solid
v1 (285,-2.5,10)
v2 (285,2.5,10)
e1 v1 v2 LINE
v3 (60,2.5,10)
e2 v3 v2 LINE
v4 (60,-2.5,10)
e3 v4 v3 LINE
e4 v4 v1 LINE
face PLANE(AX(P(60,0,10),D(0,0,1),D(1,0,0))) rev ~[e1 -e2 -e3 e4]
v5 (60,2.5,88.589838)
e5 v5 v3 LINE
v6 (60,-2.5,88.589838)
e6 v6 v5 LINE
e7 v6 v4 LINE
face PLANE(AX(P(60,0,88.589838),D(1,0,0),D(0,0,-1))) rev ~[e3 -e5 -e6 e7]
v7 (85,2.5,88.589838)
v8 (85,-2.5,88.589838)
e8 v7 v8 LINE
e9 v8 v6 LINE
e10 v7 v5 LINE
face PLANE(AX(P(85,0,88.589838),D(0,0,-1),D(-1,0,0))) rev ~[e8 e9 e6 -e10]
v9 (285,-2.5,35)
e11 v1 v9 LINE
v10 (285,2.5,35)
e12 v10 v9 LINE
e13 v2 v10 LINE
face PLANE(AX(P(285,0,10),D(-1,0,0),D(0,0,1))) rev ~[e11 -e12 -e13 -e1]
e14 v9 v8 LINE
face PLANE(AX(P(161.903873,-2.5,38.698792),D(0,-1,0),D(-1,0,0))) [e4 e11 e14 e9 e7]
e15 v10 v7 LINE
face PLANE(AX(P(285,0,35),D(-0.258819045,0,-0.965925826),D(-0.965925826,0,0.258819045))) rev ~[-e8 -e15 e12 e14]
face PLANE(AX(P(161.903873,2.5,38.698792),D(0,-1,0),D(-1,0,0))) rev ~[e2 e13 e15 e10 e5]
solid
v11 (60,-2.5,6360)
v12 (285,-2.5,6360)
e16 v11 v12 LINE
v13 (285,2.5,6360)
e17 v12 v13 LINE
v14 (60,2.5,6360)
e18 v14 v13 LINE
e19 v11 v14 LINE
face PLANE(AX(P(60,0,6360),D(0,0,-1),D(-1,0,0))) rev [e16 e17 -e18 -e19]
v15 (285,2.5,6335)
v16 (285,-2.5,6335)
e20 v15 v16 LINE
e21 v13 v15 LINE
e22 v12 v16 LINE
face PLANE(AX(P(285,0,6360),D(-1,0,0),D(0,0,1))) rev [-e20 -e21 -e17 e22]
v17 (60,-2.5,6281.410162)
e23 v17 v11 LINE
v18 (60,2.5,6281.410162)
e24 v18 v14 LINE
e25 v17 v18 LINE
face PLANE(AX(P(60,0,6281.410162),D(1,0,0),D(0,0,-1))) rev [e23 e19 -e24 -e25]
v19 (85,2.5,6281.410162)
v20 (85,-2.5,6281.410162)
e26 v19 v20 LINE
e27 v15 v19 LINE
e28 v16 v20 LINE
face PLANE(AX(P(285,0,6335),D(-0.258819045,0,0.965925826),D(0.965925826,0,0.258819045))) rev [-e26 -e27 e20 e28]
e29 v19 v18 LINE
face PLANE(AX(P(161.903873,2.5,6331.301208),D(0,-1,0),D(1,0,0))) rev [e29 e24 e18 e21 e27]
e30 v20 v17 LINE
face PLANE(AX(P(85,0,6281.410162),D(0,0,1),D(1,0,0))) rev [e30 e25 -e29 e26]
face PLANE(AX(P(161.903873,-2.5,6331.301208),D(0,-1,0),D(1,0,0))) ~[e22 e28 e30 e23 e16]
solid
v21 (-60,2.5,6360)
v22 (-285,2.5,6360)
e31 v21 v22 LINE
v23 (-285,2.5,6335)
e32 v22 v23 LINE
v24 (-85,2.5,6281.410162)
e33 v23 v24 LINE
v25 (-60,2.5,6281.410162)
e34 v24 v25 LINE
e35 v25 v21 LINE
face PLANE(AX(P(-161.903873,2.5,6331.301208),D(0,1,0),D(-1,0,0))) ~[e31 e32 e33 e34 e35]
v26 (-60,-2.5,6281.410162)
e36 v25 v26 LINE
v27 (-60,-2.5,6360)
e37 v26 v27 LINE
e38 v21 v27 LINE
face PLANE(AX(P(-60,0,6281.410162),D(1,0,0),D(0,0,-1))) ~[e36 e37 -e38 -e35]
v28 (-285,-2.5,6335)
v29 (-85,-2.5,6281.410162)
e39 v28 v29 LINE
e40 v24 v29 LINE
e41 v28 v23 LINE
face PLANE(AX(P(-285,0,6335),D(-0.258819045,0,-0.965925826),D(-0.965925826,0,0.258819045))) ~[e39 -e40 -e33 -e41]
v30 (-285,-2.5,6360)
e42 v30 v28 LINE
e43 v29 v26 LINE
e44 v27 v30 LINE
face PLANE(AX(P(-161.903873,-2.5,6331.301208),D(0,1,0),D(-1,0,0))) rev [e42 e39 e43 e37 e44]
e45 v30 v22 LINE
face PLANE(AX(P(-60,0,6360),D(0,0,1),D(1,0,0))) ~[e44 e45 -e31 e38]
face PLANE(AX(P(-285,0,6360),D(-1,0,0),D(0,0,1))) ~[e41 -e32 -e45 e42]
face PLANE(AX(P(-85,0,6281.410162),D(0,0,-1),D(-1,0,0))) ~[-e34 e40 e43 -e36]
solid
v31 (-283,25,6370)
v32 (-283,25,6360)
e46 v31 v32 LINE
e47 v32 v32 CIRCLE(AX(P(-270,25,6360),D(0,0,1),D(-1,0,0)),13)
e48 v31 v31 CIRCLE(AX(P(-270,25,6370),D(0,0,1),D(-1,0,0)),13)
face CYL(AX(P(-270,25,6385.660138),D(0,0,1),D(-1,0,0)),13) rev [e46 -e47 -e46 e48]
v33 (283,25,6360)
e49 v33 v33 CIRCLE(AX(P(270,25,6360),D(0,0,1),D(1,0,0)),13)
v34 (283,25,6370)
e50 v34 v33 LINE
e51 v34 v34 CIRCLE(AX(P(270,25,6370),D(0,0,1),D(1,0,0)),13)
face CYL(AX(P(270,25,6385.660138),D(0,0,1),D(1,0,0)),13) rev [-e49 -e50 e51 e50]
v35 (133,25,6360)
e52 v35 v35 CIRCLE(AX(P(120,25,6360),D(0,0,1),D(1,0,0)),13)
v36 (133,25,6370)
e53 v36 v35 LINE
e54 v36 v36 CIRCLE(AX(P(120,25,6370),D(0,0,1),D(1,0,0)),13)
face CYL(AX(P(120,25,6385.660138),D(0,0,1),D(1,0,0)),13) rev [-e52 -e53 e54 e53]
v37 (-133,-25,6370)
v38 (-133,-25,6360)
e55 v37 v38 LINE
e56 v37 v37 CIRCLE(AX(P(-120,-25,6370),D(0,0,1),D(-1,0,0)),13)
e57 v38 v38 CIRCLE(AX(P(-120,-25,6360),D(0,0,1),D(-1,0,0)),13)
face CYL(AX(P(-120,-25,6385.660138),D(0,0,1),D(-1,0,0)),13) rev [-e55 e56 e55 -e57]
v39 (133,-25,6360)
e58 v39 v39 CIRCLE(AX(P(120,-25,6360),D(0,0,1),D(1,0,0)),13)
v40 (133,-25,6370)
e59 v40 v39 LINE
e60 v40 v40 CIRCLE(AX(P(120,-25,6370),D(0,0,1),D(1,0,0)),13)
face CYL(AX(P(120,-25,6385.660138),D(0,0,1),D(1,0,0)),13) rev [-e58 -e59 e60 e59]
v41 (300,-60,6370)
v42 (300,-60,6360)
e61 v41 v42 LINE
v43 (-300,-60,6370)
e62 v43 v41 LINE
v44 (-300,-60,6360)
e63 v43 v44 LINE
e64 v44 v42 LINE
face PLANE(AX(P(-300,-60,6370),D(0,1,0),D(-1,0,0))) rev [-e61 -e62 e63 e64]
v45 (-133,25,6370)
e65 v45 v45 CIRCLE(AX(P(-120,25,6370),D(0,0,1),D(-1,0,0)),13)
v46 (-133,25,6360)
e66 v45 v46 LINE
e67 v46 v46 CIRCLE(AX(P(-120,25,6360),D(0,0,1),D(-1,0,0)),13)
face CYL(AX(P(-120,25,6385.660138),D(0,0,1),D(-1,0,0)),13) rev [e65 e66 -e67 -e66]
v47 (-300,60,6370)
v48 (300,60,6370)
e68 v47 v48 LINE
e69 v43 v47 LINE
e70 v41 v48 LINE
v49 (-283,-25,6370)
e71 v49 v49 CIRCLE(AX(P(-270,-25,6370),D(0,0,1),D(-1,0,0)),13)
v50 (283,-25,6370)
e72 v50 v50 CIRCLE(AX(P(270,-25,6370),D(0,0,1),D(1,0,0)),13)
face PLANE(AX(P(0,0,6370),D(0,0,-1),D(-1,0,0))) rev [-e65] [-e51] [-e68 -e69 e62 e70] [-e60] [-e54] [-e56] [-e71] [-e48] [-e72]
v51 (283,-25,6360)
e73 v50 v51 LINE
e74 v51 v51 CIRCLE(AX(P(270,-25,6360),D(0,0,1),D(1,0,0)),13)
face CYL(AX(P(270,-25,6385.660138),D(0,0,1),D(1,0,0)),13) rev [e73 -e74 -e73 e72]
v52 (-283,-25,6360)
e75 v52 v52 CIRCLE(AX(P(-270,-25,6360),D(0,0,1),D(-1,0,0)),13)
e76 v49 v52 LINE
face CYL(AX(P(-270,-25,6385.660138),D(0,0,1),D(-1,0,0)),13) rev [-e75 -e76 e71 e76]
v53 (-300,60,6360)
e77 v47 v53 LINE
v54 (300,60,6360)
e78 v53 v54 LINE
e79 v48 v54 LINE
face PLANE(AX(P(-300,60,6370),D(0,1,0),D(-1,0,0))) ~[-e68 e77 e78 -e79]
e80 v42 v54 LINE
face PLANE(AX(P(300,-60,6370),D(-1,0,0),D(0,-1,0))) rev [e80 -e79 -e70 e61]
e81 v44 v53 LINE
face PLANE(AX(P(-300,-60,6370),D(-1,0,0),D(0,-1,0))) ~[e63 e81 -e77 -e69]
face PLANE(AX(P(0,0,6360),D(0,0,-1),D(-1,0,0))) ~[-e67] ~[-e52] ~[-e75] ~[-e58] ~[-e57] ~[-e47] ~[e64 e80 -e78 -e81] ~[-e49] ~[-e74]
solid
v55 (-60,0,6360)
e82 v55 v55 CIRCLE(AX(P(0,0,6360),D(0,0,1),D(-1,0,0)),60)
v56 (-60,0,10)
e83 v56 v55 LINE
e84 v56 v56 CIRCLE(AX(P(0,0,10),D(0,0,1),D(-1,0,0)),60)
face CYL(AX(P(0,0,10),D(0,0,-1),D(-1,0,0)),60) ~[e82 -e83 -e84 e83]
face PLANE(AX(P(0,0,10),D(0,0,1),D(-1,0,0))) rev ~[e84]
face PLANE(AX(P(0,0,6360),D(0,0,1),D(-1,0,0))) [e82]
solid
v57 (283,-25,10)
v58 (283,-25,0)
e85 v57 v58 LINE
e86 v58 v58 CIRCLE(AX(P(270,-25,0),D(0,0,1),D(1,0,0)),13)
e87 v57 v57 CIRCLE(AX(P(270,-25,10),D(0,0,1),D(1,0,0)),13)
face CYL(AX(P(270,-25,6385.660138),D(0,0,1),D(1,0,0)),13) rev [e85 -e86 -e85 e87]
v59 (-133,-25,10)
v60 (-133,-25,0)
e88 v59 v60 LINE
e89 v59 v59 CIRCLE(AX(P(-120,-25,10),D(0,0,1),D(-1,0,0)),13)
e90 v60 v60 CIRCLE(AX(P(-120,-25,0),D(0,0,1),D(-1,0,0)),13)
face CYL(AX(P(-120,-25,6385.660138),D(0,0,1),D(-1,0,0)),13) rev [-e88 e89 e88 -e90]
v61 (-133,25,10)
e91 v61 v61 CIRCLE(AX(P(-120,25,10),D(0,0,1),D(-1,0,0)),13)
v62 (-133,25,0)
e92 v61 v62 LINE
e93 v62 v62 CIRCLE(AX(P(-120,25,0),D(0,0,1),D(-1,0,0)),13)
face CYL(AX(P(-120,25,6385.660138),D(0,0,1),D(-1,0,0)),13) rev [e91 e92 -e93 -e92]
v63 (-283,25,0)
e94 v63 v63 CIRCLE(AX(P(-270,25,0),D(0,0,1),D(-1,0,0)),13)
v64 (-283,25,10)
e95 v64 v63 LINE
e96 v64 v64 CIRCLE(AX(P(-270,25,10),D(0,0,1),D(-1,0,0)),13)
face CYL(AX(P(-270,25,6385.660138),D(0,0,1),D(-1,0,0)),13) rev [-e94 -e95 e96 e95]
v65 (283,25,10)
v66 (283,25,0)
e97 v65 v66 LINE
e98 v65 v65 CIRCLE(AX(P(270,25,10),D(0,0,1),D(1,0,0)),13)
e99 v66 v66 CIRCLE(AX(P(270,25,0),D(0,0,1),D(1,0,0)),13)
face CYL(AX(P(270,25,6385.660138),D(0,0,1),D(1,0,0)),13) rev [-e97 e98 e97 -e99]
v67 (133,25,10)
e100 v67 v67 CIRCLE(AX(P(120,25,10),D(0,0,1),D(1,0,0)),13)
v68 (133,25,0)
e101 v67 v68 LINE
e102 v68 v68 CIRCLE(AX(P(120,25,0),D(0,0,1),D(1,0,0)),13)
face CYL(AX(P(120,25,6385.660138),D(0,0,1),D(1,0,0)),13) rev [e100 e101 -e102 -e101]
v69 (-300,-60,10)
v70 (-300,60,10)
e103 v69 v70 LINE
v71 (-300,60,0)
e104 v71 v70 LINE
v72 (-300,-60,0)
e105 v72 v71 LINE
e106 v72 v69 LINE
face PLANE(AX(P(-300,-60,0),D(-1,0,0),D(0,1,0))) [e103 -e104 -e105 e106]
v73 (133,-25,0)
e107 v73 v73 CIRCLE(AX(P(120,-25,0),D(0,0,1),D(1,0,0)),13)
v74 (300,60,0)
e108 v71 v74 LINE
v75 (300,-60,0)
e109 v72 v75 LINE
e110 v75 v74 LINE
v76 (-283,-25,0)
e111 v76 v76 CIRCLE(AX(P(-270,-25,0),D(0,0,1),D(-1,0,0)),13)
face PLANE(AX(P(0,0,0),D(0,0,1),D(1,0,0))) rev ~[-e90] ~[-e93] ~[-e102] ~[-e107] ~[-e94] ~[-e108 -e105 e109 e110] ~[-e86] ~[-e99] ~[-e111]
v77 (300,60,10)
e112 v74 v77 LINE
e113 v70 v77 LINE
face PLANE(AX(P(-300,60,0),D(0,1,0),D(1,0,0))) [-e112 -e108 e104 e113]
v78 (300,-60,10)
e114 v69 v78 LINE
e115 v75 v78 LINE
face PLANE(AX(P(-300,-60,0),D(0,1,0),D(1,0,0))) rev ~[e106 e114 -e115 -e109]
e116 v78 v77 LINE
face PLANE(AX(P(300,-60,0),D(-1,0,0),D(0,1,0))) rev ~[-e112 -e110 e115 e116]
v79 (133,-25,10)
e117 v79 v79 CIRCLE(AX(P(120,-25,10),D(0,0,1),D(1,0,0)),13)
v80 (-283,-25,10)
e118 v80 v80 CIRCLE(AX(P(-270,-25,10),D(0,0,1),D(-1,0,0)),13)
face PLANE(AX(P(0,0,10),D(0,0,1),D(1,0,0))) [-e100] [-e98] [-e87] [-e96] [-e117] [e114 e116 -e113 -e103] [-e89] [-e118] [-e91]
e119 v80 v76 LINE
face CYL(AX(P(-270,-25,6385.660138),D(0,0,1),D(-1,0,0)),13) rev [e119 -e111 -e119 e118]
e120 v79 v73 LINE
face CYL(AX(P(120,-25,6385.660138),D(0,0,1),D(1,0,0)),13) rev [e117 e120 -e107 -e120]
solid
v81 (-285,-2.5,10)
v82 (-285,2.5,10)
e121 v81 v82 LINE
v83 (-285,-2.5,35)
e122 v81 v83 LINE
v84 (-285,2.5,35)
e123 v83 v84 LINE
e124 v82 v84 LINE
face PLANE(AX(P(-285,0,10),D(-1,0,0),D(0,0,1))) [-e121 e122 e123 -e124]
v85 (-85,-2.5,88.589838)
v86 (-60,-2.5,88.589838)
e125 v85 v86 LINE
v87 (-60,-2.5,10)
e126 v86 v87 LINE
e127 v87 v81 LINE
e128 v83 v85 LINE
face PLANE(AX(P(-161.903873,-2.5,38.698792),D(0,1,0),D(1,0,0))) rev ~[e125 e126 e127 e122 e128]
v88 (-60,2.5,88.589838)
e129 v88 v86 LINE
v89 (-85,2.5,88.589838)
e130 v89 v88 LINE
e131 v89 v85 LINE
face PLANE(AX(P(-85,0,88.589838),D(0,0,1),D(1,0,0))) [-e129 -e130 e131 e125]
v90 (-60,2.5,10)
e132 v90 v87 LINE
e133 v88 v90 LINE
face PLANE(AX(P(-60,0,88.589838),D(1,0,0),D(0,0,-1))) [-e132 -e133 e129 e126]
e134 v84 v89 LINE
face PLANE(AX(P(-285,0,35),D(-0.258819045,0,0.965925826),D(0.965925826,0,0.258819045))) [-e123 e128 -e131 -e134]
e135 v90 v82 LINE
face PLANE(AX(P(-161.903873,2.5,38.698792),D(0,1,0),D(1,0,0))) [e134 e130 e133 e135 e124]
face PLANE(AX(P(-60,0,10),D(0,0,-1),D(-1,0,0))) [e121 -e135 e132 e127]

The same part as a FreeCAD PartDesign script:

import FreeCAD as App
import Part
import Sketcher
from FreeCAD import Vector
Q = App.Units.Quantity

doc = App.newDocument("Part")
body = doc.addObject("PartDesign::Body", "Body")

# Sketch on XY plane
sketch1 = body.newObject("Sketcher::SketchObject", "Sketch")
sketch1.AttachmentSupport = (doc.getObject("XY_Plane"), [""])
sketch1.MapMode = "FlatFace"
sketch1.addGeometry([
    Part.LineSegment(Vector(-300, 60, 0), Vector(-300, -60, 0)),
    Part.LineSegment(Vector(-300, -60, 0), Vector(300, -60, 0)),
    Part.LineSegment(Vector(300, -60, 0), Vector(300, 60, 0)),
    Part.LineSegment(Vector(300, 60, 0), Vector(-300, 60, 0)),
], False)
sketch1.addConstraint([
    Sketcher.Constraint("Coincident", 0, 2, 1, 1),
    Sketcher.Constraint("Coincident", 1, 2, 2, 1),
    Sketcher.Constraint("Coincident", 2, 2, 3, 1),
    Sketcher.Constraint("Coincident", 3, 2, 0, 1),
    Sketcher.Constraint("Vertical", 0),
    Sketcher.Constraint("Horizontal", 1),
    Sketcher.Constraint("Vertical", 2),
    Sketcher.Constraint("Horizontal", 3),
    Sketcher.Constraint("Symmetric", 0, 2, 2, 2, -1, 1),
    Sketcher.Constraint("DistanceX", 1, 1, 1, 2, Q("600 mm")),
    Sketcher.Constraint("DistanceY", 0, 2, 0, 1, Q("120 mm")),
])
pad1 = body.newObject("PartDesign::Pad", "Pad")
pad1.Profile = sketch1
pad1.Length = 10
body2 = doc.addObject("PartDesign::Body", "Body001")

# Sketch on XY plane
sketch2 = body2.newObject("Sketcher::SketchObject", "Sketch001")
sketch2.AttachmentSupport = (doc.getObject("XY_Plane001"), [""])
sketch2.MapMode = "FlatFace"
sketch2.AttachmentOffset = App.Placement(Vector(0, 0, 10), App.Rotation())
sketch2.addGeometry(Part.Circle(Vector(0, 0, 0), Vector(0, 0, 1), 60), False)
sketch2.addConstraint([
    Sketcher.Constraint("Coincident", 0, 3, -1, 1),
    Sketcher.Constraint("Diameter", 0, Q("120 mm")),
])
pad2 = body2.newObject("PartDesign::Pad", "Pad001")
pad2.Profile = sketch2
pad2.Length = 6350
body3 = doc.addObject("PartDesign::Body", "Body002")

# Sketch on XZ plane
sketch3 = body3.newObject("Sketcher::SketchObject", "Sketch002")
sketch3.AttachmentSupport = (doc.getObject("XZ_Plane002"), [""])
sketch3.MapMode = "FlatFace"
sketch3.addGeometry([
    Part.LineSegment(Vector(285, 35, 0), Vector(285, 10, 0)),  # 0
    Part.LineSegment(Vector(285, 10, 0), Vector(60, 10, 0)),  # 1
    Part.LineSegment(Vector(60, 10, 0), Vector(60, 89, 0)),  # 2
    Part.LineSegment(Vector(60, 89, 0), Vector(85, 89, 0)),  # 3
    Part.LineSegment(Vector(85, 89, 0), Vector(285, 35, 0)),  # 4
], False)
sketch3.addConstraint([
    Sketcher.Constraint("Coincident", 0, 2, 1, 1),
    Sketcher.Constraint("Coincident", 1, 2, 2, 1),
    Sketcher.Constraint("Coincident", 2, 2, 3, 1),
    Sketcher.Constraint("Coincident", 3, 2, 4, 1),
    Sketcher.Constraint("Coincident", 4, 2, 0, 1),
    Sketcher.Constraint("Vertical", 0),
    Sketcher.Constraint("Horizontal", 1),
    Sketcher.Constraint("Vertical", 2),
    Sketcher.Constraint("Horizontal", 3),
    Sketcher.Constraint("Equal", 3, 0),
    Sketcher.Constraint("DistanceX", 1, 2, 1, 1, Q("225 mm")),
    Sketcher.Constraint("DistanceX", 3, 1, 3, 2, Q("25 mm")),
    Sketcher.Constraint("Angle", 4, Q("-15 deg")),
    Sketcher.Constraint("DistanceX", -1, 1, 0, 2, Q("285 mm")),
    Sketcher.Constraint("DistanceY", -1, 1, 0, 2, Q("10 mm")),
])
pad3 = body3.newObject("PartDesign::Pad", "Pad002")
pad3.Profile = sketch3
pad3.Length = 5
pad3.Midplane = True
body4 = doc.addObject("PartDesign::Body", "Body003")

# Sketch on XZ plane
sketch4 = body4.newObject("Sketcher::SketchObject", "Sketch003")
sketch4.AttachmentSupport = (doc.getObject("XZ_Plane003"), [""])
sketch4.MapMode = "FlatFace"
sketch4.addGeometry([
    Part.LineSegment(Vector(-60, 10, 0), Vector(-285, 10, 0)),  # 0
    Part.LineSegment(Vector(-285, 10, 0), Vector(-285, 35, 0)),  # 1
    Part.LineSegment(Vector(-285, 35, 0), Vector(-85, 89, 0)),  # 2
    Part.LineSegment(Vector(-85, 89, 0), Vector(-60, 89, 0)),  # 3
    Part.LineSegment(Vector(-60, 89, 0), Vector(-60, 10, 0)),  # 4
], False)
sketch4.addConstraint([
    Sketcher.Constraint("Coincident", 0, 2, 1, 1),
    Sketcher.Constraint("Coincident", 1, 2, 2, 1),
    Sketcher.Constraint("Coincident", 2, 2, 3, 1),
    Sketcher.Constraint("Coincident", 3, 2, 4, 1),
    Sketcher.Constraint("Coincident", 4, 2, 0, 1),
    Sketcher.Constraint("Horizontal", 0),
    Sketcher.Constraint("Vertical", 1),
    Sketcher.Constraint("Horizontal", 3),
    Sketcher.Constraint("Vertical", 4),
    Sketcher.Constraint("Equal", 3, 1),
    Sketcher.Constraint("DistanceX", 0, 2, 0, 1, Q("225 mm")),
    Sketcher.Constraint("DistanceX", 3, 1, 3, 2, Q("25 mm")),
    Sketcher.Constraint("Angle", 2, Q("15 deg")),
    Sketcher.Constraint("DistanceX", 0, 2, -1, 1, Q("285 mm")),
    Sketcher.Constraint("DistanceY", -1, 1, 0, 2, Q("10 mm")),
])
pad4 = body4.newObject("PartDesign::Pad", "Pad003")
pad4.Profile = sketch4
pad4.Length = 5
pad4.Midplane = True
body5 = doc.addObject("PartDesign::Body", "Body004")
doc.recompute()

mirroring = doc.addObject("Part::Mirroring", "Mirroring")
mirroring.Source = body
mirroring.Base = Vector(0, 0, 3185)
mirroring.Normal = Vector(0, 0, -1)
body5.BaseFeature = mirroring
doc.recompute()
body6 = doc.addObject("PartDesign::Body", "Body005")
doc.recompute()

mirroring2 = doc.addObject("Part::Mirroring", "Mirroring001")
mirroring2.Source = body4
mirroring2.Base = Vector(0, 0, 3185)
mirroring2.Normal = Vector(0, 0, -1)
body6.BaseFeature = mirroring2
doc.recompute()
body7 = doc.addObject("PartDesign::Body", "Body006")
doc.recompute()

mirroring3 = doc.addObject("Part::Mirroring", "Mirroring002")
mirroring3.Source = body3
mirroring3.Base = Vector(0, 0, 3185)
mirroring3.Normal = Vector(0, 0, -1)
body7.BaseFeature = mirroring3
doc.recompute()
body8 = doc.addObject("PartDesign::Body", "Body007")
body8.AllowCompound = True

# Sketch on XY plane
sketch5 = body8.newObject("Sketcher::SketchObject", "Sketch004")
sketch5.AttachmentSupport = (doc.getObject("XY_Plane007"), [""])
sketch5.MapMode = "FlatFace"
sketch5.AttachmentOffset = App.Placement(Vector(0, 0, 3185), App.Rotation())
sketch5.addGeometry([
    Part.Circle(Vector(-270, 25, 0), Vector(0, 0, 1), 13),  # 0
    Part.Circle(Vector(-270, -25, 0), Vector(0, 0, 1), 13),  # 1
    Part.Circle(Vector(-120, 25, 0), Vector(0, 0, 1), 13),  # 2
    Part.Circle(Vector(-120, -25, 0), Vector(0, 0, 1), 13),  # 3
    Part.Circle(Vector(120, -25, 0), Vector(0, 0, 1), 13),  # 4
    Part.Circle(Vector(120, 25, 0), Vector(0, 0, 1), 13),  # 5
    Part.Circle(Vector(270, -25, 0), Vector(0, 0, 1), 13),  # 6
    Part.Circle(Vector(270, 25, 0), Vector(0, 0, 1), 13),  # 7
], False)
sketch5.addConstraint([
    Sketcher.Constraint("Equal", 0, 1),
    Sketcher.Constraint("Equal", 1, 2),
    Sketcher.Constraint("Equal", 2, 3),
    Sketcher.Constraint("Equal", 3, 4),
    Sketcher.Constraint("Equal", 4, 5),
    Sketcher.Constraint("Equal", 5, 6),
    Sketcher.Constraint("Equal", 6, 7),
    Sketcher.Constraint("Symmetric", 2, 3, 4, 3, -1, 1),
    Sketcher.Constraint("Symmetric", 3, 3, 5, 3, -1, 1),
    Sketcher.Constraint("Symmetric", 0, 3, 6, 3, -1, 1),
    Sketcher.Constraint("Symmetric", 1, 3, 7, 3, -1, 1),
    Sketcher.Constraint("Symmetric", 3, 3, 4, 3, -2),
    Sketcher.Constraint("Symmetric", 1, 3, 6, 3, -2),
    Sketcher.Constraint("Horizontal", 0, 3, 2, 3),
    Sketcher.Constraint("Diameter", 0, Q("26 mm")),
    Sketcher.Constraint("DistanceX", 0, 3, -1, 1, Q("270 mm")),
    Sketcher.Constraint("DistanceY", -1, 1, 0, 3, Q("25 mm")),
    Sketcher.Constraint("DistanceX", 2, 3, -1, 1, Q("120 mm")),
])
pad5 = body8.newObject("PartDesign::Pad", "Pad004")
pad5.Profile = sketch5
pad5.Type = "TwoLengths"
pad5.Length = 3200.660138
pad5.Length2 = 3200.660138
pad5.Reversed = True
doc.recompute()

body9 = doc.addObject("PartDesign::Body", "Body008")
body9.BaseFeature = body8
boolean = body.newObject("PartDesign::Boolean", "Boolean")
boolean.Type = "Cut"
boolean.addObjects([body9])
doc.recompute()

boolean2 = body5.newObject("PartDesign::Boolean", "Boolean001")
boolean2.Type = "Cut"
boolean2.addObjects([body8])
mirroring.Visibility = False
mirroring2.Visibility = False
mirroring3.Visibility = False

doc.recompute()
